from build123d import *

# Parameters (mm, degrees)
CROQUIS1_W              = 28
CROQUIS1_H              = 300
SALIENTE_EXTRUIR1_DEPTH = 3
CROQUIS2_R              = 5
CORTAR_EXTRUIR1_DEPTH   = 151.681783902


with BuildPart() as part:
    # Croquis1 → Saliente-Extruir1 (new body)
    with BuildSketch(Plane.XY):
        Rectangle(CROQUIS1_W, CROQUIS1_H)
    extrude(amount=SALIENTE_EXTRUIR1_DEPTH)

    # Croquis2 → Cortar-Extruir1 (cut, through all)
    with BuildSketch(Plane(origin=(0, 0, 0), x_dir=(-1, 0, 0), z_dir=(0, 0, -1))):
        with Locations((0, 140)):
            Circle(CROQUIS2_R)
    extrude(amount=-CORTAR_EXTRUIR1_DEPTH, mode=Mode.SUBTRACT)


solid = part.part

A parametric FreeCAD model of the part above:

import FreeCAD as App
import Part
import Sketcher

V = App.Vector

doc = App.newDocument("Part")
body = doc.addObject("PartDesign::Body", "Body")

# Sketch on XY plane
sketch1 = body.newObject("Sketcher::SketchObject", "Sketch")
sketch1.AttachmentSupport = (doc.getObject("XY_Plane"), [""])
sketch1.MapMode = "FlatFace"
sketch1.addGeometry([
    Part.LineSegment(V(-14, 150, 0), V(-14, -150, 0)),
    Part.LineSegment(V(-14, -150, 0), V(14, -150, 0)),
    Part.LineSegment(V(14, -150, 0), V(14, 150, 0)),
    Part.LineSegment(V(14, 150, 0), V(-14, 150, 0)),
], False)
sketch1.addConstraint([
    Sketcher.Constraint("Coincident", 0, 2, 1, 1),
    Sketcher.Constraint("Coincident", 1, 2, 2, 1),
    Sketcher.Constraint("Coincident", 2, 2, 3, 1),
    Sketcher.Constraint("Coincident", 3, 2, 0, 1),
    Sketcher.Constraint("Vertical", 0),
    Sketcher.Constraint("Horizontal", 1),
    Sketcher.Constraint("Vertical", 2),
    Sketcher.Constraint("Horizontal", 3),
    Sketcher.Constraint("Symmetric", 0, 2, 2, 2, -1, 1),
    Sketcher.Constraint("DistanceX", 1, 1, 1, 2, 28.0),
    Sketcher.Constraint("DistanceY", 0, 2, 0, 1, 300.0),
])
pad1 = body.newObject("PartDesign::Pad", "Pad")
pad1.Profile = sketch1
pad1.Length = 3

# Sketch on XY plane
sketch2 = body.newObject("Sketcher::SketchObject", "Sketch001")
sketch2.AttachmentSupport = (doc.getObject("XY_Plane"), [""])
sketch2.MapMode = "FlatFace"
sketch2.addGeometry(Part.Circle(V(0, 140, 0), V(0, 0, 1), 5), False)
sketch2.addConstraint([
    Sketcher.Constraint("PointOnObject", 0, 3, -2),
    Sketcher.Constraint("Diameter", 0, 10.0),
    Sketcher.Constraint("DistanceY", -1, 1, 0, 3, 140.0),
])
pocket1 = body.newObject("PartDesign::Pocket", "Pocket")
pocket1.Profile = sketch2
pocket1.Type = "ThroughAll"
pocket1.Reversed = True

doc.recompute()
